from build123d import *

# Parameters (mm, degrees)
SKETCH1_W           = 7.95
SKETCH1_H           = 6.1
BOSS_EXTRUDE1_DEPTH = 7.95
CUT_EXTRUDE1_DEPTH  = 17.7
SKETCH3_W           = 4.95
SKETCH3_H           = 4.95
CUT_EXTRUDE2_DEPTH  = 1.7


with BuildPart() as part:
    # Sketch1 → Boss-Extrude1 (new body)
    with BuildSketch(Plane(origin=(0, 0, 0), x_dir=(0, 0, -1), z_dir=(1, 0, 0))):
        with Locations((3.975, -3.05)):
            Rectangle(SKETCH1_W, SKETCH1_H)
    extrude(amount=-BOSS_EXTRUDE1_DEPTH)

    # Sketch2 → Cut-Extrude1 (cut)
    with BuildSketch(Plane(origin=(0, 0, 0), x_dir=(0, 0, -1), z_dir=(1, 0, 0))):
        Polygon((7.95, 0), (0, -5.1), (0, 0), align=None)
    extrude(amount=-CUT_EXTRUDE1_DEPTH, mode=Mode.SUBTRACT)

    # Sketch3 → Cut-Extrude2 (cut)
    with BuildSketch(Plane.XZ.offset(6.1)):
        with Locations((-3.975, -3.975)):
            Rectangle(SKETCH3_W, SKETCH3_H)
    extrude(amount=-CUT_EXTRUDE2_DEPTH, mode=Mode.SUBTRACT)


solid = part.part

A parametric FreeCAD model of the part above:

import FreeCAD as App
import Part
import Sketcher
from FreeCAD import Vector

doc = App.newDocument("Part")
body = doc.addObject("PartDesign::Body", "Body")

sketch1 = body.newObject("Sketcher::SketchObject", "Sketch")
sketch1.AttachmentSupport = (doc.getObject("YZ_Plane"), [""])
sketch1.MapMode = "FlatFace"
sketch1.addGeometry(Part.LineSegment(Vector(0, 0, 0), Vector(-6.1, 0, 0)), False)
sketch1.addGeometry(Part.LineSegment(Vector(-6.1, 0, 0), Vector(-6.1, -7.95, 0)), False)
sketch1.addGeometry(Part.LineSegment(Vector(-6.1, -7.95, 0), Vector(0, -7.95, 0)), False)
sketch1.addGeometry(Part.LineSegment(Vector(0, -7.95, 0), Vector(0, 0, 0)), False)
sketch1.addConstraint(Sketcher.Constraint("Coincident", 0, 2, 1, 1))
sketch1.addConstraint(Sketcher.Constraint("Coincident", 1, 2, 2, 1))
sketch1.addConstraint(Sketcher.Constraint("Coincident", 2, 2, 3, 1))
sketch1.addConstraint(Sketcher.Constraint("Coincident", 3, 2, 0, 1))
sketch1.addConstraint(Sketcher.Constraint("Horizontal", 0))
sketch1.addConstraint(Sketcher.Constraint("Vertical", 1))
sketch1.addConstraint(Sketcher.Constraint("Horizontal", 2))
sketch1.addConstraint(Sketcher.Constraint("Vertical", 3))
sketch1.addConstraint(Sketcher.Constraint("Coincident", 3, 2, -1, 1))
sketch1.addConstraint(Sketcher.Constraint("DistanceX", 0, 2, 0, 1, 6.1))
sketch1.addConstraint(Sketcher.Constraint("DistanceY", 1, 2, 1, 1, 7.95))
pad1 = body.newObject("PartDesign::Pad", "Pad")
pad1.Profile = sketch1
pad1.Length = 7.95
pad1.Reversed = True

sketch2 = body.newObject("Sketcher::SketchObject", "Sketch001")
sketch2.AttachmentSupport = (doc.getObject("YZ_Plane"), [""])
sketch2.MapMode = "FlatFace"
sketch2.addGeometry(Part.LineSegment(Vector(-5.1, 0, 0), Vector(0, -7.95, 0)), False)
sketch2.addGeometry(Part.LineSegment(Vector(0, -7.95, 0), Vector(0, 0, 0)), False)
sketch2.addGeometry(Part.LineSegment(Vector(0, 0, 0), Vector(-5.1, 0, 0)), False)
sketch2.addConstraint(Sketcher.Constraint("Coincident", 0, 2, 1, 1))
sketch2.addConstraint(Sketcher.Constraint("Coincident", 1, 2, 2, 1))
sketch2.addConstraint(Sketcher.Constraint("Coincident", 2, 2, 0, 1))
sketch2.addConstraint(Sketcher.Constraint("Vertical", 1))
sketch2.addConstraint(Sketcher.Constraint("Horizontal", 2))
sketch2.addConstraint(Sketcher.Constraint("Coincident", 1, 2, -1, 1))
sketch2.addConstraint(Sketcher.Constraint("DistanceX", 2, 2, 2, 1, 5.1))
sketch2.addConstraint(Sketcher.Constraint("DistanceY", 1, 1, 1, 2, 7.95))
pocket1 = body.newObject("PartDesign::Pocket", "Pocket")
pocket1.Profile = sketch2
pocket1.Length = 17.7

sketch3 = body.newObject("Sketcher::SketchObject", "Sketch002")
sketch3.AttachmentSupport = (doc.getObject("XZ_Plane"), [""])
sketch3.MapMode = "FlatFace"
sketch3.AttachmentOffset = App.Placement(Vector(0, 0, 6.1), App.Rotation())
sketch3.addGeometry(Part.LineSegment(Vector(-6.45, -1.5, 0), Vector(-6.45, -6.45, 0)), False)
sketch3.addGeometry(Part.LineSegment(Vector(-6.45, -6.45, 0), Vector(-1.5, -6.45, 0)), False)
sketch3.addGeometry(Part.LineSegment(Vector(-1.5, -6.45, 0), Vector(-1.5, -1.5, 0)), False)
sketch3.addGeometry(Part.LineSegment(Vector(-1.5, -1.5, 0), Vector(-6.45, -1.5, 0)), False)
sketch3.addConstraint(Sketcher.Constraint("Coincident", 0, 2, 1, 1))
sketch3.addConstraint(Sketcher.Constraint("Coincident", 1, 2, 2, 1))
sketch3.addConstraint(Sketcher.Constraint("Coincident", 2, 2, 3, 1))
sketch3.addConstraint(Sketcher.Constraint("Coincident", 3, 2, 0, 1))
sketch3.addConstraint(Sketcher.Constraint("Vertical", 0))
sketch3.addConstraint(Sketcher.Constraint("Horizontal", 1))
sketch3.addConstraint(Sketcher.Constraint("Vertical", 2))
sketch3.addConstraint(Sketcher.Constraint("Horizontal", 3))
sketch3.addConstraint(Sketcher.Constraint("Equal", 3, 0))
sketch3.addConstraint(Sketcher.Constraint("DistanceX", 1, 1, 1, 2, 4.95))
sketch3.addConstraint(Sketcher.Constraint("DistanceX", 1, 2, -1, 1, 1.5))
sketch3.addConstraint(Sketcher.Constraint("DistanceY", 2, 2, -1, 1, 1.5))
pocket2 = body.newObject("PartDesign::Pocket", "Pocket001")
pocket2.Profile = sketch3
pocket2.Length = 1.7

doc.recompute()
